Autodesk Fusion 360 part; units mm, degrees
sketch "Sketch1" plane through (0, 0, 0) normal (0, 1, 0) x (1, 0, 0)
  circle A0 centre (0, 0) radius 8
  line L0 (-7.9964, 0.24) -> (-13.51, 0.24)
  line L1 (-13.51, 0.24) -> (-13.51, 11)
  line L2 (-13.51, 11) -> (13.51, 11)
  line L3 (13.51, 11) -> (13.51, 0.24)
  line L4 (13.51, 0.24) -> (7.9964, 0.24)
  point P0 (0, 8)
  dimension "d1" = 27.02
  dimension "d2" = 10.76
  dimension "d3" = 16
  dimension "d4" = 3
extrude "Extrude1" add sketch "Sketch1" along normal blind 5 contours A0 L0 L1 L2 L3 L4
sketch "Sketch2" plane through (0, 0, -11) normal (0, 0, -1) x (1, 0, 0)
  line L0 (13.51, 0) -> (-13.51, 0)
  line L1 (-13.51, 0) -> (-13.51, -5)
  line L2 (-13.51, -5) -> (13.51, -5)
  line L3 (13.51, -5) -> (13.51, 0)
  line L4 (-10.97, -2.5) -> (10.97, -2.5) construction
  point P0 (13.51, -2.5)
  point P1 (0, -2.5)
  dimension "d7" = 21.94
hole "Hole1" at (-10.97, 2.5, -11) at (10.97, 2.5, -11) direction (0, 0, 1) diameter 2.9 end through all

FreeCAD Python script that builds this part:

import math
import FreeCAD as App
import Part
import Sketcher
from FreeCAD import Vector
Q = App.Units.Quantity

doc = App.newDocument("Part")
body = doc.addObject("PartDesign::Body", "Body")

sketch1 = body.newObject("Sketcher::SketchObject", "Sketch")
sketch1.AttachmentSupport = (doc.getObject("XZ_Plane"), [""])
sketch1.MapMode = "FlatFace"
sketch1.addGeometry(Part.ArcOfCircle(Part.Circle(Vector(0, 0, 0), Vector(0, 0, 1), 8), math.radians(-178), math.radians(-2)), False)
sketch1.addGeometry(Part.LineSegment(Vector(8, 0, 0), Vector(14, 0, 0)), False)
sketch1.addGeometry(Part.LineSegment(Vector(14, 0, 0), Vector(14, -11, 0)), False)
sketch1.addGeometry(Part.LineSegment(Vector(14, -11, 0), Vector(-14, -11, 0)), False)
sketch1.addGeometry(Part.LineSegment(Vector(-14, -11, 0), Vector(-14, 0, 0)), False)
sketch1.addGeometry(Part.LineSegment(Vector(-14, 0, 0), Vector(-8, 0, 0)), False)
sketch1.addConstraint(Sketcher.Constraint("Coincident", 0, 2, 1, 1))
sketch1.addConstraint(Sketcher.Constraint("Coincident", 1, 2, 2, 1))
sketch1.addConstraint(Sketcher.Constraint("Coincident", 2, 2, 3, 1))
sketch1.addConstraint(Sketcher.Constraint("Coincident", 3, 2, 4, 1))
sketch1.addConstraint(Sketcher.Constraint("Coincident", 4, 2, 5, 1))
sketch1.addConstraint(Sketcher.Constraint("Coincident", 5, 2, 0, 1))
sketch1.addConstraint(Sketcher.Constraint("Horizontal", 1))
sketch1.addConstraint(Sketcher.Constraint("Vertical", 2))
sketch1.addConstraint(Sketcher.Constraint("Horizontal", 3))
sketch1.addConstraint(Sketcher.Constraint("Vertical", 4))
sketch1.addConstraint(Sketcher.Constraint("Horizontal", 5))
sketch1.addConstraint(Sketcher.Constraint("Coincident", 0, 3, -1, 1))
sketch1.addConstraint(Sketcher.Constraint("Symmetric", 1, 2, 4, 2, -2))
sketch1.addConstraint(Sketcher.Constraint("Radius", 0, Q("8 mm")))
sketch1.addConstraint(Sketcher.Constraint("DistanceX", 3, 2, 3, 1, Q("27.02 mm")))
sketch1.addConstraint(Sketcher.Constraint("DistanceY", 2, 2, 2, 1, Q("10.76 mm")))
sketch1.addConstraint(Sketcher.Constraint("DistanceY", 2, 2, -1, 1, Q("11 mm")))
pad1 = body.newObject("PartDesign::Pad", "Pad")
pad1.Profile = sketch1
pad1.Length = 5
pad1.Reversed = True

sketch2 = body.newObject("Sketcher::SketchObject", "Sketch001")
sketch2.AttachmentSupport = (doc.getObject("XY_Plane"), [""])
sketch2.MapMode = "FlatFace"
sketch2.AttachmentOffset = App.Placement(Vector(0, 0, -11), App.Rotation())
sketch2.addGeometry(Part.Circle(Vector(-11, 2.5, 0), Vector(0, 0, 1), 1.4), False)
sketch2.addGeometry(Part.Circle(Vector(11, 2.5, 0), Vector(0, 0, 1), 1.4), False)
sketch2.addConstraint(Sketcher.Constraint("Equal", 0, 1))
sketch2.addConstraint(Sketcher.Constraint("Symmetric", 0, 3, 1, 3, -2))
sketch2.addConstraint(Sketcher.Constraint("Diameter", 0, Q("2.9 mm")))
sketch2.addConstraint(Sketcher.Constraint("DistanceY", -1, 1, 0, 3, Q("2.5 mm")))
sketch2.addConstraint(Sketcher.Constraint("DistanceX", 0, 3, -1, 1, Q("10.97 mm")))
doc.recompute()
hole = body.newObject("PartDesign::Hole", "Hole")
hole.Profile = sketch2
hole.ThreadType = "None"
hole.Diameter = 2.9
hole.DepthType = "ThroughAll"
hole.Reversed = True

doc.recompute()
